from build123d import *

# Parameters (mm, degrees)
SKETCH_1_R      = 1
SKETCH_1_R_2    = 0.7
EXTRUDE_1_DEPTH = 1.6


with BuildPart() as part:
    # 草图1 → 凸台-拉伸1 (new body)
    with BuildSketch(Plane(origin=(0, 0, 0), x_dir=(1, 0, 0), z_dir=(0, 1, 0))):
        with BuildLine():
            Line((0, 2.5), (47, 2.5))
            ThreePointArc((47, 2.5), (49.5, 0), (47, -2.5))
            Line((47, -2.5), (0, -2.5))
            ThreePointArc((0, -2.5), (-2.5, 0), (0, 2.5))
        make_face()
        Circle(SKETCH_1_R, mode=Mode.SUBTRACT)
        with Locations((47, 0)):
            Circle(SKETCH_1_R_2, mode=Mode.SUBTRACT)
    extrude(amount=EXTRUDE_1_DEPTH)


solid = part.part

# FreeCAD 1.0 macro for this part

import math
import FreeCAD as App
import Part
import Sketcher
from FreeCAD import Vector
Q = App.Units.Quantity

doc = App.newDocument("Part")
body = doc.addObject("PartDesign::Body", "Body")

# Sketch on XZ plane
sketch1 = body.newObject("Sketcher::SketchObject", "Sketch")
sketch1.AttachmentSupport = (doc.getObject("XZ_Plane"), [""])
sketch1.MapMode = "FlatFace"
sketch1.addGeometry([
    Part.LineSegment(Vector(47, -2.5, 0), Vector(0, -2.5, 0)),  # 0
    Part.ArcOfCircle(Part.Circle(Vector(0, 0, 0), Vector(0, 0, 1), 2.5), math.radians(90), math.radians(270)),  # 1
    Part.LineSegment(Vector(0, 2.5, 0), Vector(47, 2.5, 0)),  # 2
    Part.ArcOfCircle(Part.Circle(Vector(47, 0, 0), Vector(0, 0, 1), 2.5), math.radians(-90), math.radians(90)),  # 3
    Part.Circle(Vector(47, 0, 0), Vector(0, 0, 1), 0.7),  # 4
    Part.Circle(Vector(0, 0, 0), Vector(0, 0, 1), 1),  # 5
], False)
sketch1.addConstraint([
    Sketcher.Constraint("Tangent", 0, 2, 1, 2),
    Sketcher.Constraint("Tangent", 1, 1, 2, 1),
    Sketcher.Constraint("Tangent", 2, 2, 3, 2),
    Sketcher.Constraint("Tangent", 3, 1, 0, 1),
    Sketcher.Constraint("Horizontal", 0),
    Sketcher.Constraint("Horizontal", 2),
    Sketcher.Constraint("Coincident", 1, 3, -1, 1),
    Sketcher.Constraint("Coincident", 5, 3, -1, 1),
    Sketcher.Constraint("Coincident", 4, 3, 3, 3),
    Sketcher.Constraint("Diameter", 5, Q("2 mm")),
    Sketcher.Constraint("Diameter", 4, Q("1.4 mm")),
    Sketcher.Constraint("Radius", 1, Q("2.5 mm")),
    Sketcher.Constraint("DistanceX", 0, 2, 0, 1, Q("47 mm")),
])
pad1 = body.newObject("PartDesign::Pad", "Pad")
pad1.Profile = sketch1
pad1.Length = 1.6
pad1.Reversed = True

doc.recompute()
